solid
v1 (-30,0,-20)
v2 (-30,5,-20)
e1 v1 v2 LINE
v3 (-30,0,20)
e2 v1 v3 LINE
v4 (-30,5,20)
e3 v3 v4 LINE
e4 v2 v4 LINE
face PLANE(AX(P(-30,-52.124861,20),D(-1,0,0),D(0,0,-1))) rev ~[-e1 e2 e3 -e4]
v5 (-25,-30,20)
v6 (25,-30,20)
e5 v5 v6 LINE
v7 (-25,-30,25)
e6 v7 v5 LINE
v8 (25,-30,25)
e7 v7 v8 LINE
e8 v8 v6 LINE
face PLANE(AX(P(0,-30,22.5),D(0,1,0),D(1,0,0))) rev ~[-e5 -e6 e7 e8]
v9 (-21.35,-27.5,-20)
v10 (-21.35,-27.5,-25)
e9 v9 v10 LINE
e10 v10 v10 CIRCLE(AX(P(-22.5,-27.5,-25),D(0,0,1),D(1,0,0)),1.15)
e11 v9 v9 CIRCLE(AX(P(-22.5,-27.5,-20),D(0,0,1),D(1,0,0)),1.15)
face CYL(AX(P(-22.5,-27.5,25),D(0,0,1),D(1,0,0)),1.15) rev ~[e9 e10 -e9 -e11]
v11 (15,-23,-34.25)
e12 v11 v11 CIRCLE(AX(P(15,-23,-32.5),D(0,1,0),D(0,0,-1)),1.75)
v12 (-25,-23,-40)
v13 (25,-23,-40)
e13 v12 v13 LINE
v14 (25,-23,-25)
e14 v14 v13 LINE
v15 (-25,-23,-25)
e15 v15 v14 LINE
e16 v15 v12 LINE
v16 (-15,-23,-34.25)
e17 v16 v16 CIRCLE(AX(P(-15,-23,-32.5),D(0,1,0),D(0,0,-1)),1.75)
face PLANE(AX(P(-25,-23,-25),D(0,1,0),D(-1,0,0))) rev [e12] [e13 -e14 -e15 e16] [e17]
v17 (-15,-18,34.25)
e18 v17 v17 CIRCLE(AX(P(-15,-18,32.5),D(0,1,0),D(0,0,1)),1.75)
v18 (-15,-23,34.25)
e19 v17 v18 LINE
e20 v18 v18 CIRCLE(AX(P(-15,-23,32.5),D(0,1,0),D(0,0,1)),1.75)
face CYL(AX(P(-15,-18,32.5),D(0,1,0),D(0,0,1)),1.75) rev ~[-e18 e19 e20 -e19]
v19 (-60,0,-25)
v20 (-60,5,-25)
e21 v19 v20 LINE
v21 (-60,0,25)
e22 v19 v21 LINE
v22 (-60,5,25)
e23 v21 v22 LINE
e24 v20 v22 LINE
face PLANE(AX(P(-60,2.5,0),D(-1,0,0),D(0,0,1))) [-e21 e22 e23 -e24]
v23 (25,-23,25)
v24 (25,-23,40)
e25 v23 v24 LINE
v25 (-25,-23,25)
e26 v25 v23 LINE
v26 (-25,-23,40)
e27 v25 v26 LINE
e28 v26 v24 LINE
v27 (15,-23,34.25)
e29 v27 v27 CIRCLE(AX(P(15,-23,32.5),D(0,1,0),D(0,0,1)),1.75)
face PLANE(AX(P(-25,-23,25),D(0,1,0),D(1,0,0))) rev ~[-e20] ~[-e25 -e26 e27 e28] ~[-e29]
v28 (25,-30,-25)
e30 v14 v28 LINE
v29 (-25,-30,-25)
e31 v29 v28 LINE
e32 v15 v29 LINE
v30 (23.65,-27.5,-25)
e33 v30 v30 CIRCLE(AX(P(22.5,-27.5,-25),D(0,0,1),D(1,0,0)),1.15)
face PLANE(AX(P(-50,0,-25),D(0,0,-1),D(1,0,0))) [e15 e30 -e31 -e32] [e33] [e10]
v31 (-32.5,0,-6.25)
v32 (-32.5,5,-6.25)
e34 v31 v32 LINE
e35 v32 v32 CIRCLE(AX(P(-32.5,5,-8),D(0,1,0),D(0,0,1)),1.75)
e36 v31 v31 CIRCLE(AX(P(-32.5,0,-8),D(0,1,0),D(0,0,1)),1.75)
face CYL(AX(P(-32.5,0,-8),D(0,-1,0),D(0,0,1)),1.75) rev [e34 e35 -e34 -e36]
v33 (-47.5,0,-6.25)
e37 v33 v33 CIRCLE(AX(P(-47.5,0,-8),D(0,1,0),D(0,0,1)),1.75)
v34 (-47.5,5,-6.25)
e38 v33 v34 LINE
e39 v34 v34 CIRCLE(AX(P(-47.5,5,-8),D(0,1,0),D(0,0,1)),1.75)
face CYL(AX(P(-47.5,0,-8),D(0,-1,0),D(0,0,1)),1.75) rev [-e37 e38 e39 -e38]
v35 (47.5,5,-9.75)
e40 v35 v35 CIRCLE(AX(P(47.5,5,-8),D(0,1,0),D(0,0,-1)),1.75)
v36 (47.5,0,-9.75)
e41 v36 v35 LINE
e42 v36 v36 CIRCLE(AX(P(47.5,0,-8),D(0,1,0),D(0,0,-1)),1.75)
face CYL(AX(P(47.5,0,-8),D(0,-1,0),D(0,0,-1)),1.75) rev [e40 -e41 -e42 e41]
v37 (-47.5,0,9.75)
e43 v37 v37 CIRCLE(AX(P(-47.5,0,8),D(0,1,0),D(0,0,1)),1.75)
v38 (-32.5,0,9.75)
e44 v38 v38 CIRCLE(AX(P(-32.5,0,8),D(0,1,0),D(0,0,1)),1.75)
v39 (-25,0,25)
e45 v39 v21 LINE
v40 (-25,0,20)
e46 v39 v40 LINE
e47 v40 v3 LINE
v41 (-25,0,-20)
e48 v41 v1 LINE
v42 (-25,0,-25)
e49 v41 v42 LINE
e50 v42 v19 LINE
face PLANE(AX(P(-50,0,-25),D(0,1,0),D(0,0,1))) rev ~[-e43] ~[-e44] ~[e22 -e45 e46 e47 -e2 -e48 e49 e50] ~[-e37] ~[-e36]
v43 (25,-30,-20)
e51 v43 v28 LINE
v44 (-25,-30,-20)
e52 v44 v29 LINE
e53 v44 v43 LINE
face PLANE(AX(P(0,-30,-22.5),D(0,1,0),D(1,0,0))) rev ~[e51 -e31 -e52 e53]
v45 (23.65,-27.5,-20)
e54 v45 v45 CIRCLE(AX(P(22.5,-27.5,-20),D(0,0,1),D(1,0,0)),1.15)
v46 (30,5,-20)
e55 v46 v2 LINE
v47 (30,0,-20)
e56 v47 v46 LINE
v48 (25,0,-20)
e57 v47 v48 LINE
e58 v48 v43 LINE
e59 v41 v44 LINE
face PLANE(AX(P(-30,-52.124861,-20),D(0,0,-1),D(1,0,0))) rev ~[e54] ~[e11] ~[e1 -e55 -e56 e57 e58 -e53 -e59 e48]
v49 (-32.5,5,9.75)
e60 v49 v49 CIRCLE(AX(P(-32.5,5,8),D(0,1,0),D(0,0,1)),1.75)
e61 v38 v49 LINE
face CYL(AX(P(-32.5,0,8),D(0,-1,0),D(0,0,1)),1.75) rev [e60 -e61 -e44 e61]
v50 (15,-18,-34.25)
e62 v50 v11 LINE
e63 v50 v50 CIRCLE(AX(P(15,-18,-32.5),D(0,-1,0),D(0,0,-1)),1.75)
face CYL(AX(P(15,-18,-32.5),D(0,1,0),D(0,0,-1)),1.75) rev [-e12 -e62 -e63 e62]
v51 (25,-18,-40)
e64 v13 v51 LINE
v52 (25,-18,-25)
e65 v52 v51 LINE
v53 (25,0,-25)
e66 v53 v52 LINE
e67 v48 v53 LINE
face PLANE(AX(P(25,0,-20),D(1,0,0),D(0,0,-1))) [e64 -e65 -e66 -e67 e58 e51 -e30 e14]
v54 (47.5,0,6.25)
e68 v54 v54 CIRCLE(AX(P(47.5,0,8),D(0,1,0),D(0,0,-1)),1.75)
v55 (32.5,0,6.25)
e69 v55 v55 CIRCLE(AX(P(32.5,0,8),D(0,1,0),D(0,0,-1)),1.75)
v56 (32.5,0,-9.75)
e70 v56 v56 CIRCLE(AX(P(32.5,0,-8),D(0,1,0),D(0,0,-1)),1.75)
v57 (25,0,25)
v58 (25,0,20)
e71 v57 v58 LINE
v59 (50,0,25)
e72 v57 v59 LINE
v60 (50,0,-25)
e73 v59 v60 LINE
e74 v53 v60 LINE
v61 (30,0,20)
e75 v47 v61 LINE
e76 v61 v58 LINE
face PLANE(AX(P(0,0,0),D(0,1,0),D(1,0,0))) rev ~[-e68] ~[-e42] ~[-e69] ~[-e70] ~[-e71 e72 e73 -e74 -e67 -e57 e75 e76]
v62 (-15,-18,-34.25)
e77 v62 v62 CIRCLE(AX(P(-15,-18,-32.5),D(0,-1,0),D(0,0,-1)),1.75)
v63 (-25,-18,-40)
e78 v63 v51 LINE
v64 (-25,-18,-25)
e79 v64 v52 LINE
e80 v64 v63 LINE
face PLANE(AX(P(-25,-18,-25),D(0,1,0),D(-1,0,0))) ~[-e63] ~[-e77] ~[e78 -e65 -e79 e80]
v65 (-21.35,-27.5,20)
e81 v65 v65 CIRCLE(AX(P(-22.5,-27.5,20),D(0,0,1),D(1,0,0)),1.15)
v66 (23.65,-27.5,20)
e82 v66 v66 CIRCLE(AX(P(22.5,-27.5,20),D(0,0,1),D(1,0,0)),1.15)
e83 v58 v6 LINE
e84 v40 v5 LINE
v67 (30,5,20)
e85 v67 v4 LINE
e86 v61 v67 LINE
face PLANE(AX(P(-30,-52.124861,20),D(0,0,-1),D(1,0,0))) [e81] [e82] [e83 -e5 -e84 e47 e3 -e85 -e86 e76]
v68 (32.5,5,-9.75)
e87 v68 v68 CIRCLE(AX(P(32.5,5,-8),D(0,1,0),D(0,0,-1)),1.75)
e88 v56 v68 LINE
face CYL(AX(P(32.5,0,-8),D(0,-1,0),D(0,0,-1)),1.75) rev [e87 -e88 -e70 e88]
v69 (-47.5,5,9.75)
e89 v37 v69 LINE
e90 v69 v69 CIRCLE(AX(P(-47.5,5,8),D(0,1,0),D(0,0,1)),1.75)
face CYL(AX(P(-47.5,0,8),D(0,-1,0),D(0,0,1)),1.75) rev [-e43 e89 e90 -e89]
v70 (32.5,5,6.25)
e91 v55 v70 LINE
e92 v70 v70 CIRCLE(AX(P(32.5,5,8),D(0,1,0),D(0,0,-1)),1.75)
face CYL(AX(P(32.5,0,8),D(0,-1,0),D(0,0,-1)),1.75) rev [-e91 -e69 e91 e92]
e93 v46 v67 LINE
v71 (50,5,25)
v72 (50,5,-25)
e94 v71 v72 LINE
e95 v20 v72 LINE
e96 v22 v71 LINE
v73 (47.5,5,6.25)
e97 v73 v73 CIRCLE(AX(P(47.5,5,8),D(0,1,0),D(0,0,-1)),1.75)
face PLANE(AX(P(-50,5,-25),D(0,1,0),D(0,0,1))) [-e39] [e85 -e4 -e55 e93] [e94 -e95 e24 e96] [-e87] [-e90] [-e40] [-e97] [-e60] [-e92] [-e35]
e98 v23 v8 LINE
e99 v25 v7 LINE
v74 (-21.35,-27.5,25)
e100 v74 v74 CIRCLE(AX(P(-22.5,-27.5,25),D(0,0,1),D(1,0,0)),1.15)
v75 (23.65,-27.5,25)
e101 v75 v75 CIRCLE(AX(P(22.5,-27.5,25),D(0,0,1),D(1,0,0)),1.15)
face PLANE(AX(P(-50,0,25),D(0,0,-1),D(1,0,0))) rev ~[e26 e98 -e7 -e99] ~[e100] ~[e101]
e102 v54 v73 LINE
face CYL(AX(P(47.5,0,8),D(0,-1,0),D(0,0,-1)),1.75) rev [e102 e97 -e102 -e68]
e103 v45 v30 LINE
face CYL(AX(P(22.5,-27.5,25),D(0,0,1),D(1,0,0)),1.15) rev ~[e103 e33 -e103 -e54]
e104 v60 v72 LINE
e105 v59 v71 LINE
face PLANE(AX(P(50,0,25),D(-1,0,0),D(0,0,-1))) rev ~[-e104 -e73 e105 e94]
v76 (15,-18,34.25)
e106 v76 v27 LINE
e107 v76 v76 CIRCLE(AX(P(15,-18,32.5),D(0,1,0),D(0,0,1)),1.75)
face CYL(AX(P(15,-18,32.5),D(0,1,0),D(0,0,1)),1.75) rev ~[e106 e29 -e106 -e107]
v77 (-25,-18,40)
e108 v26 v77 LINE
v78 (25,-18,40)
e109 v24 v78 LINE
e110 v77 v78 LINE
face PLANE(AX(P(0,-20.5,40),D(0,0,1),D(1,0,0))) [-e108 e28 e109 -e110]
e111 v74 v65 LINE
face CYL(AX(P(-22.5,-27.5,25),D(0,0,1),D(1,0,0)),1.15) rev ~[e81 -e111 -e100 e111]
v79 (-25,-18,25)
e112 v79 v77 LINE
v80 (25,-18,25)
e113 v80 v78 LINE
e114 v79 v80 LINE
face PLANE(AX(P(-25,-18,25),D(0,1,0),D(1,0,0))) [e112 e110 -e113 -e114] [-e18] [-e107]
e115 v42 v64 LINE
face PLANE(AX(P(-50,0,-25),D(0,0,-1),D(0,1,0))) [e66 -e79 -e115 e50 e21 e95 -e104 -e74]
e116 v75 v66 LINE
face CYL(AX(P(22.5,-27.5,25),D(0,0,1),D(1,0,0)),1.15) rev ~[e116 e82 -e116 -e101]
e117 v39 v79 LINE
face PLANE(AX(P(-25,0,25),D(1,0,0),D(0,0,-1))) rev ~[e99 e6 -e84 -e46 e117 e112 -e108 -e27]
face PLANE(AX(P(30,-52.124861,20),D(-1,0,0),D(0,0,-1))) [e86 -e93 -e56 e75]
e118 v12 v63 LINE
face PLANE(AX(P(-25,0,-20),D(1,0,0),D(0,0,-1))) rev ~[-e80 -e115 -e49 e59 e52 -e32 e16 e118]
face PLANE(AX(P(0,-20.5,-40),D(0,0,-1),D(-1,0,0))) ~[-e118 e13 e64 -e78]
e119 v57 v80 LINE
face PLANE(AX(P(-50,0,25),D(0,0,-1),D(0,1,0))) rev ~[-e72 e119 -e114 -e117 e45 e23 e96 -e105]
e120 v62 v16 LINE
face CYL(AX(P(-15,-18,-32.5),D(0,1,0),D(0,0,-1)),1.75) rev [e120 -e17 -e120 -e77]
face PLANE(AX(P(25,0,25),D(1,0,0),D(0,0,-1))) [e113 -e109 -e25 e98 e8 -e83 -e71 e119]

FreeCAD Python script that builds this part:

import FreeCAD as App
import Part
import Sketcher


def add_polygon(sketch, points):
    """Adds a closed chain of lines whose ends are joined by coincident constraints."""
    first, n = sketch.GeometryCount, len(points)
    for a, b in zip(points, points[1:] + points[:1]):
        sketch.addGeometry(Part.LineSegment(App.Vector(*a, 0), App.Vector(*b, 0)), False)
    for i in range(n):
        sketch.addConstraint(Sketcher.Constraint("Coincident", first + i, 2, first + (i + 1) % n, 1))

doc = App.newDocument("Part")
body = doc.addObject("PartDesign::Body", "Body")

# Sketch on XZ plane
sketch1 = body.newObject("Sketcher::SketchObject", "Sketch")
sketch1.AttachmentSupport = (doc.getObject("XZ_Plane"), [""])
sketch1.MapMode = "FlatFace"
add_polygon(sketch1, [(-50, -25), (-50, 25), (50, 25), (50, -25)])  # lines 0-3
sketch1.addGeometry(Part.Circle(App.Vector(-47.5, 8, 0), App.Vector(0, 0, 1), 1.75), False)  # 4
sketch1.addGeometry(Part.Circle(App.Vector(-32.5, 8, 0), App.Vector(0, 0, 1), 1.75), False)  # 5
sketch1.addGeometry(Part.Circle(App.Vector(32.5, 8, 0), App.Vector(0, 0, 1), 1.75), False)  # 6
sketch1.addGeometry(Part.Circle(App.Vector(47.5, 8, 0), App.Vector(0, 0, 1), 1.75), False)  # 7
sketch1.addGeometry(Part.Circle(App.Vector(-47.5, -8, 0), App.Vector(0, 0, 1), 1.75), False)  # 8
sketch1.addGeometry(Part.Circle(App.Vector(-32.5, -8, 0), App.Vector(0, 0, 1), 1.75), False)  # 9
sketch1.addGeometry(Part.Circle(App.Vector(32.5, -8, 0), App.Vector(0, 0, 1), 1.75), False)  # 10
sketch1.addGeometry(Part.Circle(App.Vector(47.5, -8, 0), App.Vector(0, 0, 1), 1.75), False)  # 11
sketch1.addConstraint(Sketcher.Constraint("Vertical", 0))
sketch1.addConstraint(Sketcher.Constraint("Horizontal", 1))
sketch1.addConstraint(Sketcher.Constraint("Vertical", 2))
sketch1.addConstraint(Sketcher.Constraint("Horizontal", 3))
sketch1.addConstraint(Sketcher.Constraint("Equal", 4, 5))
sketch1.addConstraint(Sketcher.Constraint("Equal", 5, 6))
sketch1.addConstraint(Sketcher.Constraint("Equal", 6, 7))
sketch1.addConstraint(Sketcher.Constraint("Equal", 7, 8))
sketch1.addConstraint(Sketcher.Constraint("Equal", 8, 9))
sketch1.addConstraint(Sketcher.Constraint("Equal", 9, 10))
sketch1.addConstraint(Sketcher.Constraint("Equal", 10, 11))
sketch1.addConstraint(Sketcher.Constraint("Symmetric", 7, 3, 8, 3, -1, 1))
sketch1.addConstraint(Sketcher.Constraint("Symmetric", 6, 3, 9, 3, -1, 1))
sketch1.addConstraint(Sketcher.Constraint("Symmetric", 5, 3, 10, 3, -1, 1))
sketch1.addConstraint(Sketcher.Constraint("Symmetric", 4, 3, 11, 3, -1, 1))
sketch1.addConstraint(Sketcher.Constraint("Symmetric", 0, 2, 2, 2, -1, 1))
sketch1.addConstraint(Sketcher.Constraint("Symmetric", 5, 3, 6, 3, -2))
sketch1.addConstraint(Sketcher.Constraint("Symmetric", 4, 3, 7, 3, -2))
sketch1.addConstraint(Sketcher.Constraint("Horizontal", 4, 3, 5, 3))
sketch1.addConstraint(Sketcher.Constraint("Diameter", 4, 3.5))
sketch1.addConstraint(Sketcher.Constraint("DistanceX", 1, 1, 1, 2, 100.0))
sketch1.addConstraint(Sketcher.Constraint("DistanceY", 0, 1, 0, 2, 50.0))
sketch1.addConstraint(Sketcher.Constraint("DistanceY", -1, 1, 4, 3, 8.0))
sketch1.addConstraint(Sketcher.Constraint("DistanceX", 4, 3, 5, 3, 15.0))
sketch1.addConstraint(Sketcher.Constraint("DistanceX", 5, 3, 6, 3, 65.0))
pad1 = body.newObject("PartDesign::Pad", "Pad")
pad1.Profile = sketch1
pad1.Length = 5
pad1.Reversed = True

# Sketch on XZ plane
sketch2 = body.newObject("Sketcher::SketchObject", "Sketch001")
sketch2.AttachmentSupport = (doc.getObject("XZ_Plane"), [""])
sketch2.MapMode = "FlatFace"
sketch2.AttachmentOffset = App.Placement(App.Vector(0, 0, -5), App.Rotation())
add_polygon(sketch2, [(-30, -20), (-30, 20), (30, 20), (30, -20)])  # lines 0-3
sketch2.addConstraint(Sketcher.Constraint("Vertical", 0))
sketch2.addConstraint(Sketcher.Constraint("Horizontal", 1))
sketch2.addConstraint(Sketcher.Constraint("Vertical", 2))
sketch2.addConstraint(Sketcher.Constraint("Horizontal", 3))
sketch2.addConstraint(Sketcher.Constraint("Symmetric", 0, 2, 2, 2, -1, 1))
sketch2.addConstraint(Sketcher.Constraint("DistanceX", 1, 1, 1, 2, 60.0))
sketch2.addConstraint(Sketcher.Constraint("DistanceY", 0, 1, 0, 2, 40.0))
pocket1 = body.newObject("PartDesign::Pocket", "Pocket")
pocket1.Profile = sketch2
pocket1.Type = "ThroughAll"
pocket1.Midplane = True

# Sketch on XZ plane
sketch3 = body.newObject("Sketcher::SketchObject", "Sketch002")
sketch3.AttachmentSupport = (doc.getObject("XZ_Plane"), [""])
sketch3.MapMode = "FlatFace"
add_polygon(sketch3, [(-25, -25), (-25, -20), (25, -20), (25, -25)])  # lines 0-3
add_polygon(sketch3, [(-25, 20), (-25, 25), (25, 25), (25, 20)])  # lines 4-7
sketch3.addConstraint(Sketcher.Constraint("Vertical", 0))
sketch3.addConstraint(Sketcher.Constraint("Horizontal", 1))
sketch3.addConstraint(Sketcher.Constraint("Vertical", 2))
sketch3.addConstraint(Sketcher.Constraint("Horizontal", 3))
sketch3.addConstraint(Sketcher.Constraint("Vertical", 4))
sketch3.addConstraint(Sketcher.Constraint("Horizontal", 5))
sketch3.addConstraint(Sketcher.Constraint("Vertical", 6))
sketch3.addConstraint(Sketcher.Constraint("Horizontal", 7))
sketch3.addConstraint(Sketcher.Constraint("Symmetric", 2, 2, 4, 2, -1, 1))
sketch3.addConstraint(Sketcher.Constraint("Symmetric", 0, 2, 6, 2, -1, 1))
sketch3.addConstraint(Sketcher.Constraint("Vertical", 3, 2, 4, 2))
sketch3.addConstraint(Sketcher.Constraint("DistanceX", 1, 1, 1, 2, 50.0))
sketch3.addConstraint(Sketcher.Constraint("DistanceY", 0, 1, 0, 2, 5.0))
sketch3.addConstraint(Sketcher.Constraint("DistanceY", 0, 2, -1, 1, 20.0))
pad2 = body.newObject("PartDesign::Pad", "Pad001")
pad2.Profile = sketch3
pad2.Length = 30

# Sketch on XY plane
sketch4 = body.newObject("Sketcher::SketchObject", "Sketch003")
sketch4.AttachmentSupport = (doc.getObject("XY_Plane"), [""])
sketch4.MapMode = "FlatFace"
sketch4.AttachmentOffset = App.Placement(App.Vector(0, 0, 25), App.Rotation())
add_polygon(sketch4, [(-25, -18), (-25, -23), (25, -23), (25, -18)])  # lines 0-3
sketch4.addConstraint(Sketcher.Constraint("Vertical", 0))
sketch4.addConstraint(Sketcher.Constraint("Horizontal", 1))
sketch4.addConstraint(Sketcher.Constraint("Vertical", 2))
sketch4.addConstraint(Sketcher.Constraint("Horizontal", 3))
sketch4.addConstraint(Sketcher.Constraint("DistanceX", 1, 1, 1, 2, 50.0))
sketch4.addConstraint(Sketcher.Constraint("DistanceY", 0, 2, 0, 1, 5.0))
sketch4.addConstraint(Sketcher.Constraint("DistanceX", 0, 2, -1, 1, 25.0))
sketch4.addConstraint(Sketcher.Constraint("DistanceY", 0, 2, -1, 1, 23.0))
pad3 = body.newObject("PartDesign::Pad", "Pad002")
pad3.Profile = sketch4
pad3.Length = 15

# Sketch on XZ plane
sketch5 = body.newObject("Sketcher::SketchObject", "Sketch004")
sketch5.AttachmentSupport = (doc.getObject("XZ_Plane"), [""])
sketch5.MapMode = "FlatFace"
sketch5.AttachmentOffset = App.Placement(App.Vector(0, 0, 18), App.Rotation())
sketch5.addGeometry(Part.Circle(App.Vector(-15, 32.5, 0), App.Vector(0, 0, 1), 1.75), False)
sketch5.addGeometry(Part.Circle(App.Vector(15, 32.5, 0), App.Vector(0, 0, 1), 1.75), False)
sketch5.addConstraint(Sketcher.Constraint("Equal", 0, 1))
sketch5.addConstraint(Sketcher.Constraint("Symmetric", 0, 3, 1, 3, -2))
sketch5.addConstraint(Sketcher.Constraint("Diameter", 0, 3.5))
sketch5.addConstraint(Sketcher.Constraint("DistanceX", 0, 3, -1, 1, 15.0))
sketch5.addConstraint(Sketcher.Constraint("DistanceY", -1, 1, 0, 3, 32.5))
pocket2 = body.newObject("PartDesign::Pocket", "Pocket001")
pocket2.Profile = sketch5
pocket2.Type = "ThroughAll"
pocket2.Reversed = True
doc.recompute()

mirrored = body.newObject("PartDesign::Mirrored", "Mirrored")
mirrored.Originals = [pad3, pocket2]
mirrored.MirrorPlane = (doc.getObject("XY_Plane"), [""])
body.Tip = mirrored

# Sketch on XY plane
sketch6 = body.newObject("Sketcher::SketchObject", "Sketch005")
sketch6.AttachmentSupport = (doc.getObject("XY_Plane"), [""])
sketch6.MapMode = "FlatFace"
sketch6.AttachmentOffset = App.Placement(App.Vector(0, 0, 25), App.Rotation())
sketch6.addGeometry(Part.Circle(App.Vector(-22.5, -27.5, 0), App.Vector(0, 0, 1), 1.15), False)
sketch6.addGeometry(Part.Circle(App.Vector(22.5, -27.5, 0), App.Vector(0, 0, 1), 1.15), False)
sketch6.addConstraint(Sketcher.Constraint("Equal", 0, 1))
sketch6.addConstraint(Sketcher.Constraint("Symmetric", 0, 3, 1, 3, -2))
sketch6.addConstraint(Sketcher.Constraint("Diameter", 0, 2.3))
sketch6.addConstraint(Sketcher.Constraint("DistanceX", 0, 3, 1, 3, 45.0))
sketch6.addConstraint(Sketcher.Constraint("DistanceY", 0, 3, -1, 1, 27.5))
pocket3 = body.newObject("PartDesign::Pocket", "Pocket002")
pocket3.Profile = sketch6
pocket3.Type = "ThroughAll"

# Sketch on YZ plane
sketch7 = body.newObject("Sketcher::SketchObject", "Sketch006")
sketch7.AttachmentSupport = (doc.getObject("YZ_Plane"), [""])
sketch7.MapMode = "FlatFace"
sketch7.AttachmentOffset = App.Placement(App.Vector(0, 0, -50), App.Rotation())
add_polygon(sketch7, [(5, -25), (0, -25), (0, 25), (5, 25)])  # lines 0-3
sketch7.addConstraint(Sketcher.Constraint("Horizontal", 0))
sketch7.addConstraint(Sketcher.Constraint("Vertical", 1))
sketch7.addConstraint(Sketcher.Constraint("Horizontal", 2))
sketch7.addConstraint(Sketcher.Constraint("Vertical", 3))
sketch7.addConstraint(Sketcher.Constraint("Symmetric", 0, 2, 1, 2, -1, 1))
sketch7.addConstraint(Sketcher.Constraint("DistanceX", 0, 2, 0, 1, 5.0))
sketch7.addConstraint(Sketcher.Constraint("DistanceY", 1, 1, 1, 2, 50.0))
pad4 = body.newObject("PartDesign::Pad", "Pad003")
pad4.Profile = sketch7
pad4.Length = 10
pad4.Reversed = True

doc.recompute()
